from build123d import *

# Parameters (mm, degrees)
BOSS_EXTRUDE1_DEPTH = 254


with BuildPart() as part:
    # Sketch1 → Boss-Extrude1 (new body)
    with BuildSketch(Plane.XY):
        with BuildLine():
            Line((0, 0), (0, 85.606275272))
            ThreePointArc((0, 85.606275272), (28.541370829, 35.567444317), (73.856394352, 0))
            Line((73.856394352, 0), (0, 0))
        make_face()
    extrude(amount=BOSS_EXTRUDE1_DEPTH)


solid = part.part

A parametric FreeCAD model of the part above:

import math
import FreeCAD as App
import Part
import Sketcher

V = App.Vector
Q = App.Units.Quantity

doc = App.newDocument("Part")
params = doc.addObject("Spreadsheet::Sheet", "Params")
for row, (alias, value) in enumerate([
    ("pad1_length", "10 in"),
], start=1):
    params.set(f"A{row}", alias)
    params.set(f"B{row}", "=" + value)
    params.setAlias(f"B{row}", alias)

body = doc.addObject("PartDesign::Body", "Body")

sketch1 = body.newObject("Sketcher::SketchObject", "Sketch")
sketch1.AttachmentSupport = (doc.getObject("XY_Plane"), [""])
sketch1.MapMode = "FlatFace"
sketch1.addGeometry(Part.LineSegment(V(0, 86, 0), V(0, 0, 0)), False)
sketch1.addGeometry(Part.LineSegment(V(0, 0, 0), V(74, 0, 0)), False)
sketch1.addGeometry(Part.ArcOfCircle(Part.Circle(V(142, 133, 0), V(0, 0, 1), 150), math.radians(-161), math.radians(-117)), False)
sketch1.addConstraint(Sketcher.Constraint("Coincident", 0, 2, 1, 1))
sketch1.addConstraint(Sketcher.Constraint("Coincident", 1, 2, 2, 2))
sketch1.addConstraint(Sketcher.Constraint("Coincident", 2, 1, 0, 1))
sketch1.addConstraint(Sketcher.Constraint("Vertical", 0))
sketch1.addConstraint(Sketcher.Constraint("Horizontal", 1))
sketch1.addConstraint(Sketcher.Constraint("Coincident", 0, 2, -1, 1))
sketch1.addConstraint(Sketcher.Constraint("Radius", 2, Q("149.795662 mm")))
sketch1.addConstraint(Sketcher.Constraint("DistanceX", 1, 1, 1, 2, Q("73.856394 mm")))
sketch1.addConstraint(Sketcher.Constraint("DistanceY", 0, 2, 0, 1, Q("85.606275 mm")))
pad1 = body.newObject("PartDesign::Pad", "Pad")
pad1.Profile = sketch1
pad1.setExpression("Length", "Params.pad1_length")

doc.recompute()
